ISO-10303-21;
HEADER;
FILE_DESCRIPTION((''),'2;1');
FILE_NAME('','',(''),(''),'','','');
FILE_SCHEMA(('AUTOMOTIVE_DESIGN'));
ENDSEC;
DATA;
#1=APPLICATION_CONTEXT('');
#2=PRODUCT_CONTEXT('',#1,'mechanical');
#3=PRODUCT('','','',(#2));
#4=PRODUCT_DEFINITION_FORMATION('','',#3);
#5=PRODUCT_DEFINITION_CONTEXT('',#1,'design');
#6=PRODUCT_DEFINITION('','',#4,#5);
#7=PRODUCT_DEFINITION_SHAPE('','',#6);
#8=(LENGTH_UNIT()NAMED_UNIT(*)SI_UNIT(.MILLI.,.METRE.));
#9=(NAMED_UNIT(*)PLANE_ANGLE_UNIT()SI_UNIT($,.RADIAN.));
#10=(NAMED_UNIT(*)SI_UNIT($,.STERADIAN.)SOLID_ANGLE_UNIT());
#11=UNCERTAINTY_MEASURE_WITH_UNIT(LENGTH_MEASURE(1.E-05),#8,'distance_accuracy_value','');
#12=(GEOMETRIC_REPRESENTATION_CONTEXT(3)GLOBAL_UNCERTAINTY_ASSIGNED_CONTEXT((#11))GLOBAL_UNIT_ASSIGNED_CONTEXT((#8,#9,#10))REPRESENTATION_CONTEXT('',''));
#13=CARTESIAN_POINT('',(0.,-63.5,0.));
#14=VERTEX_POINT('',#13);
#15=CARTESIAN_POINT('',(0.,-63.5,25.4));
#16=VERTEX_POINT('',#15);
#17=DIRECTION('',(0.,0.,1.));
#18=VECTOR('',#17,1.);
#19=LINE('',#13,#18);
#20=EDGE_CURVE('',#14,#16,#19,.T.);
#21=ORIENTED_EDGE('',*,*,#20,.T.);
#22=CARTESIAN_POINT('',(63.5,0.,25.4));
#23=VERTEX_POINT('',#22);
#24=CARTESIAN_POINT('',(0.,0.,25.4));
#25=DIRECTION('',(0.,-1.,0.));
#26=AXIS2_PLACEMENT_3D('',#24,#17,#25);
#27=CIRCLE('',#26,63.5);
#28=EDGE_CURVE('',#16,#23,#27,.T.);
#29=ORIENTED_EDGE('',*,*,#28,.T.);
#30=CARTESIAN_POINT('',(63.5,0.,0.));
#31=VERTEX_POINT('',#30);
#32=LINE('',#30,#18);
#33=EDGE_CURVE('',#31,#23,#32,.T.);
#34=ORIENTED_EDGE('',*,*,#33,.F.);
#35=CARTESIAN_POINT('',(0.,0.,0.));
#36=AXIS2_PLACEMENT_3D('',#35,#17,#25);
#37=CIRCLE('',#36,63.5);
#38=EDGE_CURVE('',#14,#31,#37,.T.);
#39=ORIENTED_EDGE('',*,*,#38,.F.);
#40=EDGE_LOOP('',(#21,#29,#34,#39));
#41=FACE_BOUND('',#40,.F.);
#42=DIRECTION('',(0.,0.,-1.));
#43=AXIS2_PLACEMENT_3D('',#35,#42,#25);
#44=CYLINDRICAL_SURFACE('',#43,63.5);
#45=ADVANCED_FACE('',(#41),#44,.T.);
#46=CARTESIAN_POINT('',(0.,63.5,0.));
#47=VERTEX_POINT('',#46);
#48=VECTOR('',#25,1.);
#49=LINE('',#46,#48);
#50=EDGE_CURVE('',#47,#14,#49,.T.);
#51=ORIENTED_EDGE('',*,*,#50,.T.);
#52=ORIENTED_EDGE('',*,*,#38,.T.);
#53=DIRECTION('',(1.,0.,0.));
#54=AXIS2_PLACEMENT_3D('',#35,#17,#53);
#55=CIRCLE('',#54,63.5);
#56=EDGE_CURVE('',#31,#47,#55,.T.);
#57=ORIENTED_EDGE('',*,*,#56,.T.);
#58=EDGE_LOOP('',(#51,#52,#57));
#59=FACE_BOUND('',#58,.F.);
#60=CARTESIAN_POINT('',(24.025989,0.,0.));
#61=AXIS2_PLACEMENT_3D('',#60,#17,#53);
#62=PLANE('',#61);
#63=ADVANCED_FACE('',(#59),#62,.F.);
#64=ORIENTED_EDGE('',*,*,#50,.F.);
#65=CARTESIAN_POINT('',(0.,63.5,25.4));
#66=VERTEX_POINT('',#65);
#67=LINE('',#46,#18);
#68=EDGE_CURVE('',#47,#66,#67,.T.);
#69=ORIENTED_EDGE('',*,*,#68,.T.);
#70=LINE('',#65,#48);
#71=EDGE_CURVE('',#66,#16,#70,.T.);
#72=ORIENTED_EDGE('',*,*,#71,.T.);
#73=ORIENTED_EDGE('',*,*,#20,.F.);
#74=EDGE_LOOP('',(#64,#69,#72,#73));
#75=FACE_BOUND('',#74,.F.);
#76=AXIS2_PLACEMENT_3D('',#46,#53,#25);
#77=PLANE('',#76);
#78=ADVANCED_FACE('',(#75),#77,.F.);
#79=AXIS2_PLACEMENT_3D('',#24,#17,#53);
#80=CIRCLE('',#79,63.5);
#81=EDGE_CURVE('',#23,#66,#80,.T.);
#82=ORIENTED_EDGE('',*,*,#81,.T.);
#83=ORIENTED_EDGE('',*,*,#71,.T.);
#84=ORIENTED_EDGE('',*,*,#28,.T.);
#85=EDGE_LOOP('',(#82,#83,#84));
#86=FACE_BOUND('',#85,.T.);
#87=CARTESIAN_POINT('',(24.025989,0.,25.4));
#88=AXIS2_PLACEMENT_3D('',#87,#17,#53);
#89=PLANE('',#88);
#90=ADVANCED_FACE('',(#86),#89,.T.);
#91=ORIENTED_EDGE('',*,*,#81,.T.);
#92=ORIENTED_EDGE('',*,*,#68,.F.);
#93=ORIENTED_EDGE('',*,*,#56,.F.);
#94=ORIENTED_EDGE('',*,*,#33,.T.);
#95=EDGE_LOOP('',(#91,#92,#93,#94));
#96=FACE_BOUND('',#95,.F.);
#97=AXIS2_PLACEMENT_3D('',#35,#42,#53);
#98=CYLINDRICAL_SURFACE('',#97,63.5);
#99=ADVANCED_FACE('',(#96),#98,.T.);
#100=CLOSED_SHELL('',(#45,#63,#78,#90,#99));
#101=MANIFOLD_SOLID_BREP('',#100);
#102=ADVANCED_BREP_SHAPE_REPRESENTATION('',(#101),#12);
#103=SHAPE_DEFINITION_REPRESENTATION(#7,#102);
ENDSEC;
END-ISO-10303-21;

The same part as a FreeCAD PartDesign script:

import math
import FreeCAD as App
import Part
import Sketcher
from FreeCAD import Vector
Q = App.Units.Quantity

doc = App.newDocument("Part")
body = doc.addObject("PartDesign::Body", "Body")

# Sketch on XY plane
sketch1 = body.newObject("Sketcher::SketchObject", "Sketch")
sketch1.AttachmentSupport = (doc.getObject("XY_Plane"), [""])
sketch1.MapMode = "FlatFace"
sketch1.addGeometry(Part.ArcOfCircle(Part.Circle(Vector(0, 0, 0), Vector(0, 0, 1), 64), math.radians(-90), math.radians(0)), False)
sketch1.addGeometry(Part.ArcOfCircle(Part.Circle(Vector(0, 0, 0), Vector(0, 0, 1), 64), math.radians(0), math.radians(90)), False)
sketch1.addGeometry(Part.LineSegment(Vector(0, 64, 0), Vector(0, -64, 0)), False)
sketch1.addConstraint(Sketcher.Constraint("Tangent", 0, 2, 1, 1))
sketch1.addConstraint(Sketcher.Constraint("Coincident", 1, 2, 2, 1))
sketch1.addConstraint(Sketcher.Constraint("Coincident", 2, 2, 0, 1))
sketch1.addConstraint(Sketcher.Constraint("Vertical", 2))
sketch1.addConstraint(Sketcher.Constraint("Coincident", 0, 3, -1, 1))
sketch1.addConstraint(Sketcher.Constraint("Equal", 0, 1))
sketch1.addConstraint(Sketcher.Constraint("PointOnObject", 0, 2, -1))
sketch1.addConstraint(Sketcher.Constraint("PointOnObject", 1, 2, -2))
sketch1.addConstraint(Sketcher.Constraint("Radius", 0, Q("2.5 in")))
pad1 = body.newObject("PartDesign::Pad", "Pad")
pad1.Profile = sketch1
pad1.Length = Q("1 in")

doc.recompute()
